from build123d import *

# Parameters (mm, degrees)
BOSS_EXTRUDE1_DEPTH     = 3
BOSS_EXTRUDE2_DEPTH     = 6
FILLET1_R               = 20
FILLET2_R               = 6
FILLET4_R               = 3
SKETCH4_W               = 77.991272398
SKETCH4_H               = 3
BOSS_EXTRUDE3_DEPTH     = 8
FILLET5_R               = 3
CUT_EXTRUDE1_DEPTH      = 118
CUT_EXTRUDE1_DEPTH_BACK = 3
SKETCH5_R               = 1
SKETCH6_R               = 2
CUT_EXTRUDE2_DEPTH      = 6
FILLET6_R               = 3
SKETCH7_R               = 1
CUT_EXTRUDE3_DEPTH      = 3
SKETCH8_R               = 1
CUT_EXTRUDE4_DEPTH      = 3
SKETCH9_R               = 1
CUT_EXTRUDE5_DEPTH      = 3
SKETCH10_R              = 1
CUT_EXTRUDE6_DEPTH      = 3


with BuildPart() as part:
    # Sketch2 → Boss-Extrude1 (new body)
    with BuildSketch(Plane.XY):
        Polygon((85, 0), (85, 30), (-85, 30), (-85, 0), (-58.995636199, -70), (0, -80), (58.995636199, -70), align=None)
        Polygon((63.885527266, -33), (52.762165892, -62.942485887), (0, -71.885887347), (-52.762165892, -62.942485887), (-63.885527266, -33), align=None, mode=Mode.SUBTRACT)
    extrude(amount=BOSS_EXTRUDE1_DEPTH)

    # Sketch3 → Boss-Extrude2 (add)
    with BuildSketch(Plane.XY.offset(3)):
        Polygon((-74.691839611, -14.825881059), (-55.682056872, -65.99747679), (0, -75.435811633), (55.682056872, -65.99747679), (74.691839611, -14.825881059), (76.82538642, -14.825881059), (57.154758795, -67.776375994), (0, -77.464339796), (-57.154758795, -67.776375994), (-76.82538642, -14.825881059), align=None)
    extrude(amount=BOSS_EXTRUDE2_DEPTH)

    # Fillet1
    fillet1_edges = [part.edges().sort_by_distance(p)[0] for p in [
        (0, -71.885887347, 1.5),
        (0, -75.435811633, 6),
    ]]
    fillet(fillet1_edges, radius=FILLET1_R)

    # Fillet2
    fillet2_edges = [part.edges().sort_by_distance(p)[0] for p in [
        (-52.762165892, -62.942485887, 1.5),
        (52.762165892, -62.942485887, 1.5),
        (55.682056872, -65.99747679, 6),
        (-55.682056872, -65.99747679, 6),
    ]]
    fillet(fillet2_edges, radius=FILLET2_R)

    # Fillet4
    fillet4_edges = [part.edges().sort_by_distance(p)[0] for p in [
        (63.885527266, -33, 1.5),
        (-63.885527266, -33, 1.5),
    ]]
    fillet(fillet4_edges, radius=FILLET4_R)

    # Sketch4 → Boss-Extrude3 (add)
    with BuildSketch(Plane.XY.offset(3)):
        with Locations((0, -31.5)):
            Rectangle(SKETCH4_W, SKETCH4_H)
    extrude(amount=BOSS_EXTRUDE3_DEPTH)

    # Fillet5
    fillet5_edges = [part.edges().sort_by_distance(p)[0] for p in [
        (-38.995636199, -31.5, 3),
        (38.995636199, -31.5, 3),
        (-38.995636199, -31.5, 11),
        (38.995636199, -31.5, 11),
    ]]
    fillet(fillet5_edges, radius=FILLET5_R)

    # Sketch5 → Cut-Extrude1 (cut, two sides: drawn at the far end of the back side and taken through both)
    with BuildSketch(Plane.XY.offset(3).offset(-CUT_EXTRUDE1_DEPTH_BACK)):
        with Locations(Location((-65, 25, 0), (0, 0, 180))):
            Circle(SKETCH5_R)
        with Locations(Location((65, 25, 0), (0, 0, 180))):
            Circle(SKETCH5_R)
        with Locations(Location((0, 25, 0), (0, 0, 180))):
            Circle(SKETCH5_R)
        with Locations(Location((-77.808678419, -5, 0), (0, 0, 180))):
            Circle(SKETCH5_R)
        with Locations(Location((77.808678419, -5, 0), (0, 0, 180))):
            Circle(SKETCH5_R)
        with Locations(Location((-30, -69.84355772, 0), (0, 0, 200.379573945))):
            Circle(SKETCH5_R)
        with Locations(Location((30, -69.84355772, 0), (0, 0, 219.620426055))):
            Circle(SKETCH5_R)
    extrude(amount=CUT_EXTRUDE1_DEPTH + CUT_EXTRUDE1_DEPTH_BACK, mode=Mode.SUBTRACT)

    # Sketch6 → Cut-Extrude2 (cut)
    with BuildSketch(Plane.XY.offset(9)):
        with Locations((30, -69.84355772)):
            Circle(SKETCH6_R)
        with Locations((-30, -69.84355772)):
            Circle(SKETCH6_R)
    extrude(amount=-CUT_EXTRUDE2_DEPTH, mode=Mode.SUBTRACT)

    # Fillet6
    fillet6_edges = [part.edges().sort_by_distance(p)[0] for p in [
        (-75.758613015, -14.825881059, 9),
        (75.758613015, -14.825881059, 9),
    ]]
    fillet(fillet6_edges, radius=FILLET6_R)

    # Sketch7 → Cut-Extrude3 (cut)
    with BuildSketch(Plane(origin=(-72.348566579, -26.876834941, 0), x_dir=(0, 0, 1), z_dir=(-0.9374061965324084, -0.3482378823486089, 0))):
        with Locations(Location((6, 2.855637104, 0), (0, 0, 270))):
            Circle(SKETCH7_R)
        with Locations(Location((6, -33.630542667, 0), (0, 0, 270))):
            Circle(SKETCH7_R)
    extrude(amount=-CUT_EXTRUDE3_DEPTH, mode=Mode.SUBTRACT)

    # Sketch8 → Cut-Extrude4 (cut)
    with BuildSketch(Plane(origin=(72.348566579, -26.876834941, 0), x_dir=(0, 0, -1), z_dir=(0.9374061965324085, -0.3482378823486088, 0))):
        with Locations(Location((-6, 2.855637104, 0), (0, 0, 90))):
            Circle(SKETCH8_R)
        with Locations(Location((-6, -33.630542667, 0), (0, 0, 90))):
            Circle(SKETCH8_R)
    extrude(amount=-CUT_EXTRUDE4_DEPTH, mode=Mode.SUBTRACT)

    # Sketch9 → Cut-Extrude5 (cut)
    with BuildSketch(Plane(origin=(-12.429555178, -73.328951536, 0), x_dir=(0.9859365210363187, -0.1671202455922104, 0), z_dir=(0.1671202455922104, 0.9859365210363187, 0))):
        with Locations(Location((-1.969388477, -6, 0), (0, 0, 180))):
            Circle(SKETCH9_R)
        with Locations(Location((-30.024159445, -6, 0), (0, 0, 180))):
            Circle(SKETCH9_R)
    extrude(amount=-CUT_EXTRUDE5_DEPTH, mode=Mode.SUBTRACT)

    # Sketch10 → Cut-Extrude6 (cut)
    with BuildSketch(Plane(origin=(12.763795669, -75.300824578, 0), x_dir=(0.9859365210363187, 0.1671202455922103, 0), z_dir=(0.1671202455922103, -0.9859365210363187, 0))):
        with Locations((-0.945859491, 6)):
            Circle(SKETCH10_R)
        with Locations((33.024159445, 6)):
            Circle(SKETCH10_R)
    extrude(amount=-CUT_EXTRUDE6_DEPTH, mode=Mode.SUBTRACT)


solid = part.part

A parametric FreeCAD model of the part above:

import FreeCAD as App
import Part
import Sketcher

V = App.Vector


def edges_at(feature, points):
    """Names of the edges that pass closest to the given points."""
    edges = feature.Shape.Edges
    near = lambda p: min(range(len(edges)), key=lambda i: edges[i].distToShape(Part.Vertex(*p))[0])
    return sorted({f"Edge{near(p) + 1}" for p in points})

doc = App.newDocument("Part")
body = doc.addObject("PartDesign::Body", "Body")

sketch1 = body.newObject("Sketcher::SketchObject", "Sketch")
sketch1.AttachmentSupport = (doc.getObject("XY_Plane"), [""])
sketch1.MapMode = "FlatFace"
sketch1.addGeometry(Part.LineSegment(V(85, 0, 0), V(85, 30, 0)), False)
sketch1.addGeometry(Part.LineSegment(V(85, 30, 0), V(-85, 30, 0)), False)
sketch1.addGeometry(Part.LineSegment(V(-85, 30, 0), V(-85, 0, 0)), False)
sketch1.addGeometry(Part.LineSegment(V(-85, 0, 0), V(-59, -70, 0)), False)
sketch1.addGeometry(Part.LineSegment(V(-59, -70, 0), V(0, -80, 0)), False)
sketch1.addGeometry(Part.LineSegment(V(0, -80, 0), V(59, -70, 0)), False)
sketch1.addGeometry(Part.LineSegment(V(59, -70, 0), V(85, 0, 0)), False)
sketch1.addGeometry(Part.LineSegment(V(-64, -33, 0), V(64, -33, 0)), False)
sketch1.addGeometry(Part.LineSegment(V(64, -33, 0), V(53, -63, 0)), False)
sketch1.addGeometry(Part.LineSegment(V(53, -63, 0), V(0, -72, 0)), False)
sketch1.addGeometry(Part.LineSegment(V(0, -72, 0), V(-53, -63, 0)), False)
sketch1.addGeometry(Part.LineSegment(V(-53, -63, 0), V(-64, -33, 0)), False)
sketch1.addConstraint(Sketcher.Constraint("Coincident", 0, 2, 1, 1))
sketch1.addConstraint(Sketcher.Constraint("Coincident", 1, 2, 2, 1))
sketch1.addConstraint(Sketcher.Constraint("Coincident", 2, 2, 3, 1))
sketch1.addConstraint(Sketcher.Constraint("Coincident", 3, 2, 4, 1))
sketch1.addConstraint(Sketcher.Constraint("Coincident", 4, 2, 5, 1))
sketch1.addConstraint(Sketcher.Constraint("Coincident", 5, 2, 6, 1))
sketch1.addConstraint(Sketcher.Constraint("Coincident", 6, 2, 0, 1))
sketch1.addConstraint(Sketcher.Constraint("Coincident", 7, 2, 8, 1))
sketch1.addConstraint(Sketcher.Constraint("Coincident", 8, 2, 9, 1))
sketch1.addConstraint(Sketcher.Constraint("Coincident", 9, 2, 10, 1))
sketch1.addConstraint(Sketcher.Constraint("Coincident", 10, 2, 11, 1))
sketch1.addConstraint(Sketcher.Constraint("Coincident", 11, 2, 7, 1))
sketch1.addConstraint(Sketcher.Constraint("Vertical", 0))
sketch1.addConstraint(Sketcher.Constraint("Horizontal", 1))
sketch1.addConstraint(Sketcher.Constraint("Vertical", 2))
sketch1.addConstraint(Sketcher.Constraint("Horizontal", 7))
sketch1.addConstraint(Sketcher.Constraint("Symmetric", 2, 2, 6, 2, -1, 1))
sketch1.addConstraint(Sketcher.Constraint("Symmetric", 3, 2, 5, 2, -2))
sketch1.addConstraint(Sketcher.Constraint("Symmetric", 8, 2, 10, 2, -2))
sketch1.addConstraint(Sketcher.Constraint("PointOnObject", 2, 2, -1))
sketch1.addConstraint(Sketcher.Constraint("PointOnObject", 4, 2, -2))
sketch1.addConstraint(Sketcher.Constraint("PointOnObject", 9, 2, -2))
sketch1.addConstraint(Sketcher.Constraint("Parallel", 6, 8))
sketch1.addConstraint(Sketcher.Constraint("Parallel", 5, 9))
sketch1.addConstraint(Sketcher.Constraint("Parallel", 3, 11))
sketch1.addConstraint(Sketcher.Constraint("DistanceX", 1, 2, 1, 1, 170.0))
sketch1.addConstraint(Sketcher.Constraint("DistanceY", 0, 1, 0, 2, 30.0))
sketch1.addConstraint(Sketcher.Constraint("DistanceY", 3, 2, -1, 1, 70.0))
sketch1.addConstraint(Sketcher.Constraint("DistanceY", 4, 2, -1, 1, 80.0))
sketch1.addConstraint(Sketcher.Constraint("DistanceY", 7, 2, -1, 1, 33.0))
sketch1.addConstraint(Sketcher.Constraint("DistanceY", 9, 2, 8, 2, 8.943401))
sketch1.addConstraint(Sketcher.Constraint("Distance", 3, 74.674138))
sketch1.addConstraint(Sketcher.Constraint("DistanceX", 7, 1, 7, 2, 127.771055))
pad1 = body.newObject("PartDesign::Pad", "Pad")
pad1.Profile = sketch1
pad1.Length = 3

sketch2 = body.newObject("Sketcher::SketchObject", "Sketch001")
sketch2.AttachmentSupport = (doc.getObject("XY_Plane"), [""])
sketch2.MapMode = "FlatFace"
sketch2.AttachmentOffset = App.Placement(V(0, 0, 3), App.Rotation())
sketch2.addGeometry(Part.LineSegment(V(-55.7, -66, 0), V(-74.7, -14.8, 0)), False)
sketch2.addGeometry(Part.LineSegment(V(-74.7, -14.8, 0), V(-76.8, -14.8, 0)), False)
sketch2.addGeometry(Part.LineSegment(V(-76.8, -14.8, 0), V(-57.2, -67.8, 0)), False)
sketch2.addGeometry(Part.LineSegment(V(-57.2, -67.8, 0), V(0, -77.5, 0)), False)
sketch2.addGeometry(Part.LineSegment(V(0, -77.5, 0), V(57.2, -67.8, 0)), False)
sketch2.addGeometry(Part.LineSegment(V(57.2, -67.8, 0), V(76.8, -14.8, 0)), False)
sketch2.addGeometry(Part.LineSegment(V(76.8, -14.8, 0), V(74.7, -14.8, 0)), False)
sketch2.addGeometry(Part.LineSegment(V(74.7, -14.8, 0), V(55.7, -66, 0)), False)
sketch2.addGeometry(Part.LineSegment(V(55.7, -66, 0), V(0, -75.4, 0)), False)
sketch2.addGeometry(Part.LineSegment(V(0, -75.4, 0), V(-55.7, -66, 0)), False)
sketch2.addConstraint(Sketcher.Constraint("Coincident", 0, 2, 1, 1))
sketch2.addConstraint(Sketcher.Constraint("Coincident", 1, 2, 2, 1))
sketch2.addConstraint(Sketcher.Constraint("Coincident", 2, 2, 3, 1))
sketch2.addConstraint(Sketcher.Constraint("Coincident", 3, 2, 4, 1))
sketch2.addConstraint(Sketcher.Constraint("Coincident", 4, 2, 5, 1))
sketch2.addConstraint(Sketcher.Constraint("Coincident", 5, 2, 6, 1))
sketch2.addConstraint(Sketcher.Constraint("Coincident", 6, 2, 7, 1))
sketch2.addConstraint(Sketcher.Constraint("Coincident", 7, 2, 8, 1))
sketch2.addConstraint(Sketcher.Constraint("Coincident", 8, 2, 9, 1))
sketch2.addConstraint(Sketcher.Constraint("Coincident", 9, 2, 0, 1))
sketch2.addConstraint(Sketcher.Constraint("Horizontal", 1))
sketch2.addConstraint(Sketcher.Constraint("Horizontal", 6))
sketch2.addConstraint(Sketcher.Constraint("Symmetric", 2, 2, 4, 2, -2))
sketch2.addConstraint(Sketcher.Constraint("Symmetric", 1, 2, 5, 2, -2))
sketch2.addConstraint(Sketcher.Constraint("Symmetric", 7, 2, 9, 2, -2))
sketch2.addConstraint(Sketcher.Constraint("PointOnObject", 3, 2, -2))
sketch2.addConstraint(Sketcher.Constraint("PointOnObject", 8, 2, -2))
sketch2.addConstraint(Sketcher.Constraint("Parallel", 0, 2))
sketch2.addConstraint(Sketcher.Constraint("Parallel", 5, 7))
sketch2.addConstraint(Sketcher.Constraint("Parallel", 4, 8))
sketch2.addConstraint(Sketcher.Constraint("DistanceX", 0, 2, 4, 2, 131.846598))
sketch2.addConstraint(Sketcher.Constraint("DistanceX", 7, 2, 4, 2, 1.472702))
sketch2.addConstraint(Sketcher.Constraint("DistanceY", 4, 2, 7, 2, 1.778899))
sketch2.addConstraint(Sketcher.Constraint("Distance", 2, 56.48618))
sketch2.addConstraint(Sketcher.Constraint("Distance", 3, 57.970019))
sketch2.addConstraint(Sketcher.Constraint("DistanceX", 1, 2, 1, 1, 2.133547))
sketch2.addConstraint(Sketcher.Constraint("DistanceY", 0, 2, -1, 1, 14.825881))
pad2 = body.newObject("PartDesign::Pad", "Pad001")
pad2.Profile = sketch2
pad2.Length = 6
doc.recompute()

fillet = body.newObject("PartDesign::Fillet", "Fillet")
fillet.Base = (pad2, edges_at(pad2, [(0, -71.886, 1.5), (0, -75.436, 6)]))
fillet.Radius = 20
doc.recompute()

fillet2 = body.newObject("PartDesign::Fillet", "Fillet001")
fillet2.Base = (fillet, edges_at(fillet, [
    (-52.762, -62.942, 1.5),
    (52.762, -62.942, 1.5),
    (55.682, -65.997, 6),
    (-55.682, -65.997, 6),
]))
fillet2.Radius = 6
doc.recompute()

fillet3 = body.newObject("PartDesign::Fillet", "Fillet002")
fillet3.Base = (fillet2, edges_at(fillet2, [(63.886, -33, 1.5), (-63.886, -33, 1.5)]))
fillet3.Radius = 3

sketch3 = body.newObject("Sketcher::SketchObject", "Sketch002")
sketch3.AttachmentSupport = (doc.getObject("XY_Plane"), [""])
sketch3.MapMode = "FlatFace"
sketch3.AttachmentOffset = App.Placement(V(0, 0, 3), App.Rotation())
sketch3.addGeometry(Part.LineSegment(V(-39, -30, 0), V(-39, -33, 0)), False)
sketch3.addGeometry(Part.LineSegment(V(-39, -33, 0), V(39, -33, 0)), False)
sketch3.addGeometry(Part.LineSegment(V(39, -33, 0), V(39, -30, 0)), False)
sketch3.addGeometry(Part.LineSegment(V(39, -30, 0), V(-39, -30, 0)), False)
sketch3.addConstraint(Sketcher.Constraint("Coincident", 0, 2, 1, 1))
sketch3.addConstraint(Sketcher.Constraint("Coincident", 1, 2, 2, 1))
sketch3.addConstraint(Sketcher.Constraint("Coincident", 2, 2, 3, 1))
sketch3.addConstraint(Sketcher.Constraint("Coincident", 3, 2, 0, 1))
sketch3.addConstraint(Sketcher.Constraint("Vertical", 0))
sketch3.addConstraint(Sketcher.Constraint("Horizontal", 1))
sketch3.addConstraint(Sketcher.Constraint("Vertical", 2))
sketch3.addConstraint(Sketcher.Constraint("Horizontal", 3))
sketch3.addConstraint(Sketcher.Constraint("DistanceY", 0, 2, 0, 1, 3.0))
sketch3.addConstraint(Sketcher.Constraint("DistanceY", 0, 2, -1, 1, 33.0))
sketch3.addConstraint(Sketcher.Constraint("DistanceX", 1, 1, 1, 2, 77.991272))
sketch3.addConstraint(Sketcher.Constraint("DistanceX", 0, 2, -1, 1, 38.995636))
pad3 = body.newObject("PartDesign::Pad", "Pad002")
pad3.Profile = sketch3
pad3.Length = 8
doc.recompute()

fillet4 = body.newObject("PartDesign::Fillet", "Fillet003")
fillet4.Base = (pad3, edges_at(pad3, [
    (-38.996, -31.5, 3),
    (38.996, -31.5, 3),
    (-38.996, -31.5, 11),
    (38.996, -31.5, 11),
]))
fillet4.Radius = 3

sketch4 = body.newObject("Sketcher::SketchObject", "Sketch003")
sketch4.AttachmentSupport = (doc.getObject("XY_Plane"), [""])
sketch4.MapMode = "FlatFace"
sketch4.AttachmentOffset = App.Placement(V(0, 0, 3), App.Rotation())
sketch4.addGeometry(Part.Circle(V(-65, 25, 0), V(0, 0, 1), 1), False)
sketch4.addGeometry(Part.Circle(V(65, 25, 0), V(0, 0, 1), 1), False)
sketch4.addGeometry(Part.Circle(V(0, 25, 0), V(0, 0, 1), 1), False)
sketch4.addGeometry(Part.Circle(V(-77.8, -5, 0), V(0, 0, 1), 1), False)
sketch4.addGeometry(Part.Circle(V(77.8, -5, 0), V(0, 0, 1), 1), False)
sketch4.addGeometry(Part.Circle(V(-30, -69.8, 0), V(0, 0, 1), 1), False)
sketch4.addGeometry(Part.Circle(V(30, -69.8, 0), V(0, 0, 1), 1), False)
sketch4.addConstraint(Sketcher.Constraint("Equal", 0, 1))
sketch4.addConstraint(Sketcher.Constraint("Equal", 1, 2))
sketch4.addConstraint(Sketcher.Constraint("Equal", 2, 3))
sketch4.addConstraint(Sketcher.Constraint("Equal", 3, 4))
sketch4.addConstraint(Sketcher.Constraint("Equal", 4, 5))
sketch4.addConstraint(Sketcher.Constraint("Equal", 5, 6))
sketch4.addConstraint(Sketcher.Constraint("Symmetric", 0, 3, 1, 3, -2))
sketch4.addConstraint(Sketcher.Constraint("Symmetric", 3, 3, 4, 3, -2))
sketch4.addConstraint(Sketcher.Constraint("Symmetric", 5, 3, 6, 3, -2))
sketch4.addConstraint(Sketcher.Constraint("PointOnObject", 2, 3, -2))
sketch4.addConstraint(Sketcher.Constraint("Horizontal", 1, 3, 2, 3))
sketch4.addConstraint(Sketcher.Constraint("Diameter", 0, 2.0))
sketch4.addConstraint(Sketcher.Constraint("DistanceX", 0, 3, -1, 1, 65.0))
sketch4.addConstraint(Sketcher.Constraint("DistanceY", -1, 1, 0, 3, 25.0))
sketch4.addConstraint(Sketcher.Constraint("DistanceY", 3, 3, -1, 1, 5.0))
sketch4.addConstraint(Sketcher.Constraint("DistanceX", 5, 3, -1, 1, 30.0))
sketch4.addConstraint(Sketcher.Constraint("DistanceX", 3, 3, -1, 1, 77.808678))
sketch4.addConstraint(Sketcher.Constraint("DistanceY", 5, 3, -1, 1, 69.843558))
pocket1 = body.newObject("PartDesign::Pocket", "Pocket")
pocket1.Profile = sketch4
pocket1.Type = "ThroughAll"
pocket1.Midplane = True

sketch5 = body.newObject("Sketcher::SketchObject", "Sketch004")
sketch5.AttachmentSupport = (doc.getObject("XY_Plane"), [""])
sketch5.MapMode = "FlatFace"
sketch5.AttachmentOffset = App.Placement(V(0, 0, 9), App.Rotation())
sketch5.addGeometry(Part.Circle(V(30, -69.8, 0), V(0, 0, 1), 2), False)
sketch5.addGeometry(Part.Circle(V(-30, -69.8, 0), V(0, 0, 1), 2), False)
sketch5.addConstraint(Sketcher.Constraint("Equal", 0, 1))
sketch5.addConstraint(Sketcher.Constraint("Symmetric", 0, 3, 1, 3, -2))
sketch5.addConstraint(Sketcher.Constraint("Diameter", 0, 4.0))
sketch5.addConstraint(Sketcher.Constraint("DistanceX", -1, 1, 0, 3, 30.0))
sketch5.addConstraint(Sketcher.Constraint("DistanceY", 0, 3, -1, 1, 69.843558))
pocket2 = body.newObject("PartDesign::Pocket", "Pocket001")
pocket2.Profile = sketch5
pocket2.Length = 6
doc.recompute()

fillet5 = body.newObject("PartDesign::Fillet", "Fillet004")
fillet5.Base = (pocket2, edges_at(pocket2, [(-75.759, -14.826, 9), (75.759, -14.826, 9)]))
fillet5.Radius = 3

sketch6 = body.newObject("Sketcher::SketchObject", "Sketch005")
sketch6.Placement = App.Placement(V(-72.348567, -26.876835, 0), App.Rotation(V(0, 0, 1), V(-0.348237882, 0.937406197, 0), V(-0.937406197, -0.348237882, 0), "ZXY"))
sketch6.addGeometry(Part.Circle(V(6, 2.9, 0), V(0, 0, 1), 1), False)
sketch6.addGeometry(Part.Circle(V(6, -33.6, 0), V(0, 0, 1), 1), False)
sketch6.addConstraint(Sketcher.Constraint("Equal", 0, 1))
sketch6.addConstraint(Sketcher.Constraint("Vertical", 0, 3, 1, 3))
sketch6.addConstraint(Sketcher.Constraint("Diameter", 0, 2.0))
sketch6.addConstraint(Sketcher.Constraint("DistanceX", -1, 1, 0, 3, 6.0))
sketch6.addConstraint(Sketcher.Constraint("DistanceY", 1, 3, 0, 3, 36.48618))
sketch6.addConstraint(Sketcher.Constraint("DistanceY", -1, 1, 0, 3, 2.855637))
pocket3 = body.newObject("PartDesign::Pocket", "Pocket002")
pocket3.Profile = sketch6
pocket3.Length = 3

sketch7 = body.newObject("Sketcher::SketchObject", "Sketch006")
sketch7.Placement = App.Placement(V(72.348567, -26.876835, 0), App.Rotation(V(0, 0, -1), V(0.348237882, 0.937406197, 0), V(0.937406197, -0.348237882, 0), "ZXY"))
sketch7.addGeometry(Part.Circle(V(-6, 2.9, 0), V(0, 0, 1), 1), False)
sketch7.addGeometry(Part.Circle(V(-6, -33.6, 0), V(0, 0, 1), 1), False)
sketch7.addConstraint(Sketcher.Constraint("Equal", 0, 1))
sketch7.addConstraint(Sketcher.Constraint("Vertical", 0, 3, 1, 3))
sketch7.addConstraint(Sketcher.Constraint("Diameter", 0, 2.0))
sketch7.addConstraint(Sketcher.Constraint("DistanceX", 0, 3, -1, 1, 6.0))
sketch7.addConstraint(Sketcher.Constraint("DistanceY", 1, 3, 0, 3, 36.48618))
sketch7.addConstraint(Sketcher.Constraint("DistanceY", -1, 1, 0, 3, 2.855637))
pocket4 = body.newObject("PartDesign::Pocket", "Pocket003")
pocket4.Profile = sketch7
pocket4.Length = 3

sketch8 = body.newObject("Sketcher::SketchObject", "Sketch007")
sketch8.Placement = App.Placement(V(-12.429555, -73.328952, 0), App.Rotation(V(0.985936521, -0.167120246, 0), V(0, 0, -1), V(0.167120246, 0.985936521, 0), "ZXY"))
sketch8.addGeometry(Part.Circle(V(-2, -6, 0), V(0, 0, 1), 1), False)
sketch8.addGeometry(Part.Circle(V(-30, -6, 0), V(0, 0, 1), 1), False)
sketch8.addConstraint(Sketcher.Constraint("Equal", 0, 1))
sketch8.addConstraint(Sketcher.Constraint("Horizontal", 0, 3, 1, 3))
sketch8.addConstraint(Sketcher.Constraint("Diameter", 0, 2.0))
sketch8.addConstraint(Sketcher.Constraint("DistanceY", 0, 3, -1, 1, 6.0))
sketch8.addConstraint(Sketcher.Constraint("DistanceX", 0, 3, -1, 1, 1.969388))
sketch8.addConstraint(Sketcher.Constraint("DistanceX", 1, 3, -1, 1, 30.024159))
pocket5 = body.newObject("PartDesign::Pocket", "Pocket004")
pocket5.Profile = sketch8
pocket5.Length = 3

sketch9 = body.newObject("Sketcher::SketchObject", "Sketch008")
sketch9.Placement = App.Placement(V(12.763796, -75.300825, 0), App.Rotation(V(0.985936521, 0.167120246, 0), V(0, 0, 1), V(0.167120246, -0.985936521, 0), "ZXY"))
sketch9.addGeometry(Part.Circle(V(-0.9, 6, 0), V(0, 0, 1), 1), False)
sketch9.addGeometry(Part.Circle(V(33, 6, 0), V(0, 0, 1), 1), False)
sketch9.addConstraint(Sketcher.Constraint("Equal", 0, 1))
sketch9.addConstraint(Sketcher.Constraint("Horizontal", 0, 3, 1, 3))
sketch9.addConstraint(Sketcher.Constraint("Diameter", 0, 2.0))
sketch9.addConstraint(Sketcher.Constraint("DistanceY", -1, 1, 0, 3, 6.0))
sketch9.addConstraint(Sketcher.Constraint("DistanceX", 0, 3, -1, 1, 0.945859))
sketch9.addConstraint(Sketcher.Constraint("DistanceX", -1, 1, 1, 3, 33.024159))
pocket6 = body.newObject("PartDesign::Pocket", "Pocket005")
pocket6.Profile = sketch9
pocket6.Length = 3

doc.recompute()
